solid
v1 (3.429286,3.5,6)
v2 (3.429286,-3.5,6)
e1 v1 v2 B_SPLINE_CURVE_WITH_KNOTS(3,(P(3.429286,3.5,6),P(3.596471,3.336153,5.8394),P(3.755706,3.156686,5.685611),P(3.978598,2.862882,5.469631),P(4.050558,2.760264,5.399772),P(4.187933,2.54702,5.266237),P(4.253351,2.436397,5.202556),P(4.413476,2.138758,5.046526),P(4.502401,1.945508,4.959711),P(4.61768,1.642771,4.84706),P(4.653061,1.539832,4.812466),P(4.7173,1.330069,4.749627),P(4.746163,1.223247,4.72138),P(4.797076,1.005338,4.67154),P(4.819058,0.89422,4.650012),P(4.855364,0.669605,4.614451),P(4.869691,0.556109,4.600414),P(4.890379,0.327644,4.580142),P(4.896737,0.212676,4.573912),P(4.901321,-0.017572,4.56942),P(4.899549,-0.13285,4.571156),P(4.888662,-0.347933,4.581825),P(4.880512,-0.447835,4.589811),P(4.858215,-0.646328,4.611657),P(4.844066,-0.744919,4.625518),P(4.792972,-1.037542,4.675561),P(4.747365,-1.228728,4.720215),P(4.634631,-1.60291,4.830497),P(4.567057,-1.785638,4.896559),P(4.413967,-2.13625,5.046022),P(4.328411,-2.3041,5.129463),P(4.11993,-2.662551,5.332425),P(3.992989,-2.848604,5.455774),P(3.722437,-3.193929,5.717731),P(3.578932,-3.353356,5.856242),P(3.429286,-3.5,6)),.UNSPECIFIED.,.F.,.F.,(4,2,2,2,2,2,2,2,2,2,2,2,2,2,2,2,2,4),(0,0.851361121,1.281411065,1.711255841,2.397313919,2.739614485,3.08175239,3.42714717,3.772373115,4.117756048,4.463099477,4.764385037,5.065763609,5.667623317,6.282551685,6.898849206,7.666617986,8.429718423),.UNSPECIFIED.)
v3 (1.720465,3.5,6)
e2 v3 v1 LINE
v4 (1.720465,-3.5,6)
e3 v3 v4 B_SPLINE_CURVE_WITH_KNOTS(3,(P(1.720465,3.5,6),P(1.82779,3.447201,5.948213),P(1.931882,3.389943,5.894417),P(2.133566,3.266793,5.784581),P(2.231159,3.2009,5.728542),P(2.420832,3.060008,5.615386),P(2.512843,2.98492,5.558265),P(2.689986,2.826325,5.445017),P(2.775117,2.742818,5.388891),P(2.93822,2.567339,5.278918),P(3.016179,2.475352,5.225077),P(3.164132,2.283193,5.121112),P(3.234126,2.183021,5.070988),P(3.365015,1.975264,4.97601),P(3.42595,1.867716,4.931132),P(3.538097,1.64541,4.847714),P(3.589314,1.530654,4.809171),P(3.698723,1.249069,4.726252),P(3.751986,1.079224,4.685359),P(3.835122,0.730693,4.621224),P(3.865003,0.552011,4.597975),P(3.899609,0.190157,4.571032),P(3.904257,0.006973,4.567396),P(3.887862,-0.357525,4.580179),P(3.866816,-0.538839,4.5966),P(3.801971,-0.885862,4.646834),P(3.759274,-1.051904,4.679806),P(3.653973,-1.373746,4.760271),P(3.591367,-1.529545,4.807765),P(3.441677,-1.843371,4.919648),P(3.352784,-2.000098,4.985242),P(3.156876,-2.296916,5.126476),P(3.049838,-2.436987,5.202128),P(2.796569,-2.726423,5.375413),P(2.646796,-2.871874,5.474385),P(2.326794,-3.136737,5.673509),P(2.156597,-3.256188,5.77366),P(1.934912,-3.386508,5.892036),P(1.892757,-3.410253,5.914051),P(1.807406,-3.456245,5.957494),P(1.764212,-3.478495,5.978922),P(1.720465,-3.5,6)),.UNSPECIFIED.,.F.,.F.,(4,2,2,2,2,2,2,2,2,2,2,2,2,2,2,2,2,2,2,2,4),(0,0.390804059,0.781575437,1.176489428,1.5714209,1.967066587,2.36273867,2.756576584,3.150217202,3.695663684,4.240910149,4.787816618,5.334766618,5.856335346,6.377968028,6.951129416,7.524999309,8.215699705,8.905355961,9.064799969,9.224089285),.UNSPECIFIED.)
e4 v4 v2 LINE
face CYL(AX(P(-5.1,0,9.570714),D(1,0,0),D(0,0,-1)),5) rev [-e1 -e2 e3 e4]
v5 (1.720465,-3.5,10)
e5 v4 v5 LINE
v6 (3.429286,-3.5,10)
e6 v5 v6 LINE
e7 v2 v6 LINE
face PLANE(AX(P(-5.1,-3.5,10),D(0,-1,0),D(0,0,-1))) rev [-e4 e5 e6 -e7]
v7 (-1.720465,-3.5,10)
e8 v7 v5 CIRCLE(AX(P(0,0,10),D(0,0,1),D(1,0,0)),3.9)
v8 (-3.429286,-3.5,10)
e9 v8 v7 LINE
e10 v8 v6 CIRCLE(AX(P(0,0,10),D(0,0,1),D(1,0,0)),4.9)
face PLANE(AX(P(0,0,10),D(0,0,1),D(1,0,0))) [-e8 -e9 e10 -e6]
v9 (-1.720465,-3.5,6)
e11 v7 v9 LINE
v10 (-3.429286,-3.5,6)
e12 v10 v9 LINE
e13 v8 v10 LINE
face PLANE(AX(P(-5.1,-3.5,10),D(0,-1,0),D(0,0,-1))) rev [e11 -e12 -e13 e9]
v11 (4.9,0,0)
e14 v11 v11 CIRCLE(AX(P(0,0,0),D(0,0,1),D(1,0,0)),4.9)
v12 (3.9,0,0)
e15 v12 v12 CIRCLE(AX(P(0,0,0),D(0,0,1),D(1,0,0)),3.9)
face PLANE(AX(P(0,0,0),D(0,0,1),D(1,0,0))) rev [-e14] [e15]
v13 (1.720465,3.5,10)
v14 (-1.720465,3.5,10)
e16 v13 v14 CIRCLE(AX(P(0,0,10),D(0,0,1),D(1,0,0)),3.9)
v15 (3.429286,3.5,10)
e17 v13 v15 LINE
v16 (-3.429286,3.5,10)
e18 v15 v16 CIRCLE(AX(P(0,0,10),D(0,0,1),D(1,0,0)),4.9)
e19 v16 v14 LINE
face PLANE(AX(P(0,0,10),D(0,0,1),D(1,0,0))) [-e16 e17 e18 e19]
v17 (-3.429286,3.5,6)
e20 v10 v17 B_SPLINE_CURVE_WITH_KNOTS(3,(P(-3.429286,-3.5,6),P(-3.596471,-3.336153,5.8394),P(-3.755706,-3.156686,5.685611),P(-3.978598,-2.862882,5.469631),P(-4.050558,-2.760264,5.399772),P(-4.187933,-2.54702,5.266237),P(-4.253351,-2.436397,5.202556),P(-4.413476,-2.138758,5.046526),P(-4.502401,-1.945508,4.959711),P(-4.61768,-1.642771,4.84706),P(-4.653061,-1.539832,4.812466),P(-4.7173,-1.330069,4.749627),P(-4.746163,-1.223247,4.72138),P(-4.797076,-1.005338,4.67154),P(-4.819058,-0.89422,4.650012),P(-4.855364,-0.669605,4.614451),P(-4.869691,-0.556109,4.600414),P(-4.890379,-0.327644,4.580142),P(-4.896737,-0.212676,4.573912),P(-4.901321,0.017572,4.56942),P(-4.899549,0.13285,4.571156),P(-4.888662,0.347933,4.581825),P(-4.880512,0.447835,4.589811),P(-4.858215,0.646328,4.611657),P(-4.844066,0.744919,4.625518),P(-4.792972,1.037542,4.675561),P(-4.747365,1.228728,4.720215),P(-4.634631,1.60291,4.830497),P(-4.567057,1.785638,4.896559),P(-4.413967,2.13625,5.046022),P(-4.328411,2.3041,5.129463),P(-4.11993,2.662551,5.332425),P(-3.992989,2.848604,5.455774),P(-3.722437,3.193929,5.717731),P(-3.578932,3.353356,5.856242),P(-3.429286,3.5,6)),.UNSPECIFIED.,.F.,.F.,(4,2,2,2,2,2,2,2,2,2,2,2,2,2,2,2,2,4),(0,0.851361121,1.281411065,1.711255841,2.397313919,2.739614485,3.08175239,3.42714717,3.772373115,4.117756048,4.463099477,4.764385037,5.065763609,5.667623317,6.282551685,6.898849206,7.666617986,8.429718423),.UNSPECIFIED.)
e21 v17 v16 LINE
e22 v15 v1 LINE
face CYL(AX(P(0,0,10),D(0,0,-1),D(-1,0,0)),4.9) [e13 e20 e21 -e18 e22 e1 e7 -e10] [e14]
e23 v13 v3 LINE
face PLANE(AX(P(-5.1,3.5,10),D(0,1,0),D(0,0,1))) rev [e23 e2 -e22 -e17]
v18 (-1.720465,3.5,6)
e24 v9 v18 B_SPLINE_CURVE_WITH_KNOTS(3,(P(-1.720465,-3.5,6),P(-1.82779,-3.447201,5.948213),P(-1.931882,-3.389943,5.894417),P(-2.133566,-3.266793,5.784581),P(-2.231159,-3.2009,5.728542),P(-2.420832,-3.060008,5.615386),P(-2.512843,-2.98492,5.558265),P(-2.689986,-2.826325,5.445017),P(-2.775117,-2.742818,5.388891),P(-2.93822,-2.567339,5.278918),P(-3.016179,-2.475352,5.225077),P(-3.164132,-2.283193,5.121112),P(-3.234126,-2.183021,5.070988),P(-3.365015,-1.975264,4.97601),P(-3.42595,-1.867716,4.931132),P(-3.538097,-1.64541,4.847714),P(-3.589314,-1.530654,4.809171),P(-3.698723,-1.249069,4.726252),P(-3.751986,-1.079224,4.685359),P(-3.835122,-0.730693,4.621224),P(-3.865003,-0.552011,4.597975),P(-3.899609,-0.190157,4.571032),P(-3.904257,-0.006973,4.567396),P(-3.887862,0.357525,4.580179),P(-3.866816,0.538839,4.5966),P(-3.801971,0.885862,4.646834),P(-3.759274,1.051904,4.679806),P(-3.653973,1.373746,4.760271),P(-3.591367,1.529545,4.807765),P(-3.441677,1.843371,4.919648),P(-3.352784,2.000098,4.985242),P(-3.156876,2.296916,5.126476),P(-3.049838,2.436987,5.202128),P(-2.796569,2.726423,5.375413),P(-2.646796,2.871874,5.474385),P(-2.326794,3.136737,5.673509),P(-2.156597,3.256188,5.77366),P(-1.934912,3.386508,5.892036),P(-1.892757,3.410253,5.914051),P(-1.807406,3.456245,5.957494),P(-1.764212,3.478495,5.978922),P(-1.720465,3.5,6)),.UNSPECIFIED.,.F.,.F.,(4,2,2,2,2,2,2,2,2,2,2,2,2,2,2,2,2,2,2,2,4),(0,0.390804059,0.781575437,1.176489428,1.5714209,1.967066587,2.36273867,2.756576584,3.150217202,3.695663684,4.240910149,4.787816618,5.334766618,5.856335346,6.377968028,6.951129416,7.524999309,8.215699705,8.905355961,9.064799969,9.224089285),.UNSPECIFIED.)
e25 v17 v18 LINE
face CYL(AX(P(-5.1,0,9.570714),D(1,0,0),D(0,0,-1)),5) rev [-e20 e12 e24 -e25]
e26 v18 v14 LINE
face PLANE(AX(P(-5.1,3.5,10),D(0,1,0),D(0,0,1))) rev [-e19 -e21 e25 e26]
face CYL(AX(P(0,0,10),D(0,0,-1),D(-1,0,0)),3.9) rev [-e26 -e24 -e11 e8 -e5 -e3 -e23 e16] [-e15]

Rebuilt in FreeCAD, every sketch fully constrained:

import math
import FreeCAD as App
import Part
import Sketcher

doc = App.newDocument("Part")
body = doc.addObject("PartDesign::Body", "Body")

# Sketch on XY plane
sketch1 = body.newObject("Sketcher::SketchObject", "Sketch")
sketch1.AttachmentSupport = (doc.getObject("XY_Plane"), [""])
sketch1.MapMode = "FlatFace"
sketch1.addGeometry([
    Part.Circle(App.Vector(0, 0, 0), App.Vector(0, 0, 1), 4.9),
    Part.Circle(App.Vector(0, 0, 0), App.Vector(0, 0, 1), 3.9),
], False)
sketch1.addConstraint([
    Sketcher.Constraint("Coincident", 0, 3, -1, 1),
    Sketcher.Constraint("Coincident", 1, 3, -1, 1),
    Sketcher.Constraint("Diameter", 0, 9.8),
    Sketcher.Constraint("Diameter", 1, 7.8),
])
pad1 = body.newObject("PartDesign::Pad", "Pad")
pad1.Profile = sketch1
pad1.Length = 10

# Sketch on YZ plane
sketch2 = body.newObject("Sketcher::SketchObject", "Sketch001")
sketch2.AttachmentSupport = (doc.getObject("YZ_Plane"), [""])
sketch2.MapMode = "FlatFace"
sketch2.AttachmentOffset = App.Placement(App.Vector(0, 0, 4.9), App.Rotation())
sketch2.addGeometry([
    Part.LineSegment(App.Vector(3.5, 10, 0), App.Vector(-3.5, 10, 0)),
    Part.LineSegment(App.Vector(-3.5, 10, 0), App.Vector(-3.5, 6, 0)),
    Part.ArcOfCircle(Part.Circle(App.Vector(0, 9.6, 0), App.Vector(0, 0, 1), 5), math.radians(-134), math.radians(-46)),
    Part.LineSegment(App.Vector(3.5, 6, 0), App.Vector(3.5, 10, 0)),
], False)
sketch2.addConstraint([
    Sketcher.Constraint("Coincident", 0, 2, 1, 1),
    Sketcher.Constraint("Coincident", 1, 2, 2, 1),
    Sketcher.Constraint("Coincident", 2, 2, 3, 1),
    Sketcher.Constraint("Coincident", 3, 2, 0, 1),
    Sketcher.Constraint("Horizontal", 0),
    Sketcher.Constraint("Vertical", 1),
    Sketcher.Constraint("Vertical", 3),
    Sketcher.Constraint("Symmetric", 1, 2, 2, 2, -2),
    Sketcher.Constraint("Radius", 2, 5.0),
    Sketcher.Constraint("DistanceX", 0, 2, 0, 1, 7.0),
    Sketcher.Constraint("DistanceY", 1, 2, 1, 1, 4.0),
    Sketcher.Constraint("DistanceY", -1, 1, 0, 2, 10.0),
])
pocket1 = body.newObject("PartDesign::Pocket", "Pocket")
pocket1.Profile = sketch2
pocket1.Length = 10

doc.recompute()
